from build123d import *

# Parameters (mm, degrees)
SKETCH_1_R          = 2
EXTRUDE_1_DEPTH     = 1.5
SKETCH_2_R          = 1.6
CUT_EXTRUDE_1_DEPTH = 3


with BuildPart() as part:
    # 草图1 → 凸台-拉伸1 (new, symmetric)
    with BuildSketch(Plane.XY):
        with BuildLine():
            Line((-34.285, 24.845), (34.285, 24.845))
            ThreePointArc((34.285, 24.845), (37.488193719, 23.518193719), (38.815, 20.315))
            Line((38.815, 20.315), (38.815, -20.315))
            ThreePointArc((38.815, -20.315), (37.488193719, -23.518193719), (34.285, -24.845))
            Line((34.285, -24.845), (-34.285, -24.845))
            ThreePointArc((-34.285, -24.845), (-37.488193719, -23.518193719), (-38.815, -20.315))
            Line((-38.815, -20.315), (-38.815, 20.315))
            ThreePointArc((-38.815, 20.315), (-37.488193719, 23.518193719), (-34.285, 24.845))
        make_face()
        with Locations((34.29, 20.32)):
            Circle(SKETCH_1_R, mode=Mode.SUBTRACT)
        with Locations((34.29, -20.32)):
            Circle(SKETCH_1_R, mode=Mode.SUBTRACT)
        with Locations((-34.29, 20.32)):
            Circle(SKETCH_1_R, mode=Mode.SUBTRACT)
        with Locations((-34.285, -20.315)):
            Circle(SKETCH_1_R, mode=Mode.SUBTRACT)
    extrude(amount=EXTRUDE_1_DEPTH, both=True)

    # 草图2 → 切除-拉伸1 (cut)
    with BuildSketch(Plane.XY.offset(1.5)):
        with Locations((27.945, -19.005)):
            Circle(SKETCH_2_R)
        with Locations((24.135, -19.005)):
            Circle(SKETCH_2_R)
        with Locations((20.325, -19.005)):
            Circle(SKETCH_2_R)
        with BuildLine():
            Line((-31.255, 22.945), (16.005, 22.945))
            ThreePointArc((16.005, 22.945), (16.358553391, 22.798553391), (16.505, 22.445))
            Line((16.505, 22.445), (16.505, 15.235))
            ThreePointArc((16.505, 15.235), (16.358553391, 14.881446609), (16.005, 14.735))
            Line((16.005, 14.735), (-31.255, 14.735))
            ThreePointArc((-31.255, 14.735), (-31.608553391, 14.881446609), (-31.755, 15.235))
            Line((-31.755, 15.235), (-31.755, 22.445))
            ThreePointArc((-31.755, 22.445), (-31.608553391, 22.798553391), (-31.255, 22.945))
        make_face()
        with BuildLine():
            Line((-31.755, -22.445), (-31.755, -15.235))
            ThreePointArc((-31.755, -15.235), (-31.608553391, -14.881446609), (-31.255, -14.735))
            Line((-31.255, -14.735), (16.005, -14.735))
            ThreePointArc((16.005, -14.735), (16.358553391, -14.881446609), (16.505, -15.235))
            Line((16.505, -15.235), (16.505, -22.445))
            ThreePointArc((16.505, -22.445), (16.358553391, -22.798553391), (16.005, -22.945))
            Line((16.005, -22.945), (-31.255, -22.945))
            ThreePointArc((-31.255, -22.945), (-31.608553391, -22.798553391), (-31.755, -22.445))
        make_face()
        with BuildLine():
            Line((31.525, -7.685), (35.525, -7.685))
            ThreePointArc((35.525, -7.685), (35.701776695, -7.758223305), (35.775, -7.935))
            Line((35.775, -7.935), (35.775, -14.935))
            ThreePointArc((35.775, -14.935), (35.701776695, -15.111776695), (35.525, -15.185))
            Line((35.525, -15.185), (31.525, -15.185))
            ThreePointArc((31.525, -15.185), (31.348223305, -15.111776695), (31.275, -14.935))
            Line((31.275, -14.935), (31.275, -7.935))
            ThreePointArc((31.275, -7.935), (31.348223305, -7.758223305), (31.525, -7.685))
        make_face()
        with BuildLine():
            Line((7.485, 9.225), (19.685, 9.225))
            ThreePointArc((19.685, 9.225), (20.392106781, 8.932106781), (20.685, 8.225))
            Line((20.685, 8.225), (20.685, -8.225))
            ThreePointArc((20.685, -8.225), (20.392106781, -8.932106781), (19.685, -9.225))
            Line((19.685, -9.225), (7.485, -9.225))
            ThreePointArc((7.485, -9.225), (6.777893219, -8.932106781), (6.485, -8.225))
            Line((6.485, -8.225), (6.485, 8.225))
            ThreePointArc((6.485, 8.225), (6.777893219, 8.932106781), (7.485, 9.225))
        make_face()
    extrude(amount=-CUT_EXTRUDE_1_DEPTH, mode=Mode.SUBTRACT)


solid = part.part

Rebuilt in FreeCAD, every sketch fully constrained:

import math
import FreeCAD as App
import Part
import Sketcher
from FreeCAD import Vector
Q = App.Units.Quantity

doc = App.newDocument("Part")
body = doc.addObject("PartDesign::Body", "Body")

# Sketch on XY plane
sketch1 = body.newObject("Sketcher::SketchObject", "Sketch")
sketch1.AttachmentSupport = (doc.getObject("XY_Plane"), [""])
sketch1.MapMode = "FlatFace"
sketch1.addGeometry([
    Part.LineSegment(Vector(34.3, 24.8, 0), Vector(-34.3, 24.8, 0)),  # 0
    Part.ArcOfCircle(Part.Circle(Vector(-34.3, 20.3, 0), Vector(0, 0, 1), 4.5), math.radians(90), math.radians(180)),  # 1
    Part.LineSegment(Vector(-38.8, 20.3, 0), Vector(-38.8, -20.3, 0)),  # 2
    Part.ArcOfCircle(Part.Circle(Vector(-34.3, -20.3, 0), Vector(0, 0, 1), 4.5), math.radians(180), math.radians(270)),  # 3
    Part.LineSegment(Vector(-34.3, -24.8, 0), Vector(34.3, -24.8, 0)),  # 4
    Part.ArcOfCircle(Part.Circle(Vector(34.3, -20.3, 0), Vector(0, 0, 1), 4.5), math.radians(-90), math.radians(0)),  # 5
    Part.LineSegment(Vector(38.8, -20.3, 0), Vector(38.8, 20.3, 0)),  # 6
    Part.ArcOfCircle(Part.Circle(Vector(34.3, 20.3, 0), Vector(0, 0, 1), 4.5), math.radians(0), math.radians(90)),  # 7
    Part.Circle(Vector(34.3, -20.3, 0), Vector(0, 0, 1), 2),  # 8
    Part.Circle(Vector(-34.3, -20.3, 0), Vector(0, 0, 1), 2),  # 9
    Part.Circle(Vector(34.3, 20.3, 0), Vector(0, 0, 1), 2),  # 10
    Part.Circle(Vector(-34.3, 20.3, 0), Vector(0, 0, 1), 2),  # 11
], False)
sketch1.addConstraint([
    Sketcher.Constraint("Tangent", 0, 2, 1, 1),
    Sketcher.Constraint("Tangent", 1, 2, 2, 1),
    Sketcher.Constraint("Tangent", 2, 2, 3, 1),
    Sketcher.Constraint("Tangent", 3, 2, 4, 1),
    Sketcher.Constraint("Tangent", 4, 2, 5, 1),
    Sketcher.Constraint("Tangent", 5, 2, 6, 1),
    Sketcher.Constraint("Tangent", 6, 2, 7, 1),
    Sketcher.Constraint("Tangent", 7, 2, 0, 1),
    Sketcher.Constraint("Horizontal", 0),
    Sketcher.Constraint("Vertical", 2),
    Sketcher.Constraint("Horizontal", 4),
    Sketcher.Constraint("Vertical", 6),
    Sketcher.Constraint("Coincident", 9, 3, 3, 3),
    Sketcher.Constraint("Equal", 1, 3),
    Sketcher.Constraint("Equal", 3, 5),
    Sketcher.Constraint("Equal", 5, 7),
    Sketcher.Constraint("Equal", 8, 9),
    Sketcher.Constraint("Equal", 9, 10),
    Sketcher.Constraint("Equal", 10, 11),
    Sketcher.Constraint("Symmetric", 1, 3, 5, 3, -1, 1),
    Sketcher.Constraint("Symmetric", 8, 3, 11, 3, -1, 1),
    Sketcher.Constraint("Symmetric", 10, 3, 11, 3, -2),
    Sketcher.Constraint("Diameter", 8, Q("4 mm")),
    Sketcher.Constraint("Radius", 1, Q("4.53 mm")),
    Sketcher.Constraint("DistanceX", 0, 2, 0, 1, Q("68.57 mm")),
    Sketcher.Constraint("DistanceY", 2, 2, 2, 1, Q("40.63 mm")),
    Sketcher.Constraint("DistanceX", -1, 1, 8, 3, Q("34.29 mm")),
    Sketcher.Constraint("DistanceY", 8, 3, -1, 1, Q("20.32 mm")),
])
pad1 = body.newObject("PartDesign::Pad", "Pad")
pad1.Profile = sketch1
pad1.Length = 3
pad1.Midplane = True

# Sketch on XY plane
sketch2 = body.newObject("Sketcher::SketchObject", "Sketch001")
sketch2.AttachmentSupport = (doc.getObject("XY_Plane"), [""])
sketch2.MapMode = "FlatFace"
sketch2.AttachmentOffset = App.Placement(Vector(0, 0, 1.5), App.Rotation())
sketch2.addGeometry([
    Part.Circle(Vector(27.95, -19, 0), Vector(0, 0, 1), 1.6),  # 0
    Part.Circle(Vector(24.14, -19, 0), Vector(0, 0, 1), 1.6),  # 1
    Part.Circle(Vector(20.32, -19, 0), Vector(0, 0, 1), 1.6),  # 2
    Part.LineSegment(Vector(16, 22.95, 0), Vector(-31.25, 22.95, 0)),  # 3
    Part.ArcOfCircle(Part.Circle(Vector(-31.26, 22.45, 0), Vector(0, 0, 1), 0.5), math.radians(90), math.radians(180)),  # 4
    Part.LineSegment(Vector(-31.75, 22.45, 0), Vector(-31.75, 15.23, 0)),  # 5
    Part.ArcOfCircle(Part.Circle(Vector(-31.26, 15.23, 0), Vector(0, 0, 1), 0.5), math.radians(180), math.radians(270)),  # 6
    Part.LineSegment(Vector(-31.25, 14.73, 0), Vector(16, 14.73, 0)),  # 7
    Part.ArcOfCircle(Part.Circle(Vector(16.01, 15.23, 0), Vector(0, 0, 1), 0.5), math.radians(-90), math.radians(0)),  # 8
    Part.LineSegment(Vector(16.5, 15.23, 0), Vector(16.5, 22.45, 0)),  # 9
    Part.ArcOfCircle(Part.Circle(Vector(16.01, 22.45, 0), Vector(0, 0, 1), 0.5), math.radians(0), math.radians(90)),  # 10
    Part.LineSegment(Vector(-31.75, -15.23, 0), Vector(-31.75, -22.45, 0)),  # 11
    Part.ArcOfCircle(Part.Circle(Vector(-31.26, -22.45, 0), Vector(0, 0, 1), 0.5), math.radians(180), math.radians(270)),  # 12
    Part.LineSegment(Vector(-31.25, -22.95, 0), Vector(16, -22.95, 0)),  # 13
    Part.ArcOfCircle(Part.Circle(Vector(16.01, -22.45, 0), Vector(0, 0, 1), 0.5), math.radians(-90), math.radians(0)),  # 14
    Part.LineSegment(Vector(16.5, -22.45, 0), Vector(16.5, -15.23, 0)),  # 15
    Part.ArcOfCircle(Part.Circle(Vector(16.01, -15.23, 0), Vector(0, 0, 1), 0.5), math.radians(0), math.radians(90)),  # 16
    Part.LineSegment(Vector(16, -14.73, 0), Vector(-31.25, -14.73, 0)),  # 17
    Part.ArcOfCircle(Part.Circle(Vector(-31.26, -15.23, 0), Vector(0, 0, 1), 0.5), math.radians(90), math.radians(180)),  # 18
    Part.LineSegment(Vector(35.52, -7.68, 0), Vector(31.52, -7.68, 0)),  # 19
    Part.ArcOfCircle(Part.Circle(Vector(31.53, -7.94, 0), Vector(0, 0, 1), 0.25), math.radians(90), math.radians(180)),  # 20
    Part.LineSegment(Vector(31.27, -7.93, 0), Vector(31.27, -14.94, 0)),  # 21
    Part.ArcOfCircle(Part.Circle(Vector(31.53, -14.93, 0), Vector(0, 0, 1), 0.25), math.radians(-180), math.radians(-90)),  # 22
    Part.LineSegment(Vector(31.52, -15.19, 0), Vector(35.52, -15.19, 0)),  # 23
    Part.ArcOfCircle(Part.Circle(Vector(35.52, -14.93, 0), Vector(0, 0, 1), 0.25), math.radians(-90), math.radians(0)),  # 24
    Part.LineSegment(Vector(35.77, -14.94, 0), Vector(35.77, -7.93, 0)),  # 25
    Part.ArcOfCircle(Part.Circle(Vector(35.52, -7.94, 0), Vector(0, 0, 1), 0.25), math.radians(0), math.radians(90)),  # 26
    Part.LineSegment(Vector(19.68, 9.22, 0), Vector(7.49, 9.22, 0)),  # 27
    Part.ArcOfCircle(Part.Circle(Vector(7.49, 8.22, 0), Vector(0, 0, 1), 1), math.radians(90), math.radians(180)),  # 28
    Part.LineSegment(Vector(6.49, 8.22, 0), Vector(6.49, -8.22, 0)),  # 29
    Part.ArcOfCircle(Part.Circle(Vector(7.49, -8.22, 0), Vector(0, 0, 1), 1), math.radians(-180), math.radians(-90)),  # 30
    Part.LineSegment(Vector(7.49, -9.22, 0), Vector(19.68, -9.22, 0)),  # 31
    Part.ArcOfCircle(Part.Circle(Vector(19.68, -8.22, 0), Vector(0, 0, 1), 1), math.radians(-90), math.radians(0)),  # 32
    Part.LineSegment(Vector(20.68, -8.22, 0), Vector(20.68, 8.22, 0)),  # 33
    Part.ArcOfCircle(Part.Circle(Vector(19.68, 8.22, 0), Vector(0, 0, 1), 1), math.radians(0), math.radians(90)),  # 34
], False)
sketch2.addConstraint([
    Sketcher.Constraint("Tangent", 3, 2, 4, 1),
    Sketcher.Constraint("Tangent", 4, 2, 5, 1),
    Sketcher.Constraint("Tangent", 5, 2, 6, 1),
    Sketcher.Constraint("Tangent", 6, 2, 7, 1),
    Sketcher.Constraint("Tangent", 7, 2, 8, 1),
    Sketcher.Constraint("Tangent", 8, 2, 9, 1),
    Sketcher.Constraint("Tangent", 9, 2, 10, 1),
    Sketcher.Constraint("Tangent", 10, 2, 3, 1),
    Sketcher.Constraint("Tangent", 11, 2, 12, 1),
    Sketcher.Constraint("Tangent", 12, 2, 13, 1),
    Sketcher.Constraint("Tangent", 13, 2, 14, 1),
    Sketcher.Constraint("Tangent", 14, 2, 15, 1),
    Sketcher.Constraint("Tangent", 15, 2, 16, 1),
    Sketcher.Constraint("Tangent", 16, 2, 17, 1),
    Sketcher.Constraint("Tangent", 17, 2, 18, 1),
    Sketcher.Constraint("Tangent", 18, 2, 11, 1),
    Sketcher.Constraint("Tangent", 19, 2, 20, 1),
    Sketcher.Constraint("Tangent", 20, 2, 21, 1),
    Sketcher.Constraint("Tangent", 21, 2, 22, 1),
    Sketcher.Constraint("Tangent", 22, 2, 23, 1),
    Sketcher.Constraint("Tangent", 23, 2, 24, 1),
    Sketcher.Constraint("Tangent", 24, 2, 25, 1),
    Sketcher.Constraint("Tangent", 25, 2, 26, 1),
    Sketcher.Constraint("Tangent", 26, 2, 19, 1),
    Sketcher.Constraint("Tangent", 27, 2, 28, 1),
    Sketcher.Constraint("Tangent", 28, 2, 29, 1),
    Sketcher.Constraint("Tangent", 29, 2, 30, 1),
    Sketcher.Constraint("Tangent", 30, 2, 31, 1),
    Sketcher.Constraint("Tangent", 31, 2, 32, 1),
    Sketcher.Constraint("Tangent", 32, 2, 33, 1),
    Sketcher.Constraint("Tangent", 33, 2, 34, 1),
    Sketcher.Constraint("Tangent", 34, 2, 27, 1),
    Sketcher.Constraint("Horizontal", 3),
    Sketcher.Constraint("Vertical", 5),
    Sketcher.Constraint("Horizontal", 7),
    Sketcher.Constraint("Vertical", 9),
    Sketcher.Constraint("Vertical", 11),
    Sketcher.Constraint("Horizontal", 13),
    Sketcher.Constraint("Vertical", 15),
    Sketcher.Constraint("Horizontal", 17),
    Sketcher.Constraint("Horizontal", 19),
    Sketcher.Constraint("Vertical", 21),
    Sketcher.Constraint("Horizontal", 23),
    Sketcher.Constraint("Vertical", 25),
    Sketcher.Constraint("Horizontal", 27),
    Sketcher.Constraint("Vertical", 29),
    Sketcher.Constraint("Horizontal", 31),
    Sketcher.Constraint("Vertical", 33),
    Sketcher.Constraint("Equal", 0, 1),
    Sketcher.Constraint("Equal", 1, 2),
    Sketcher.Constraint("Equal", 4, 6),
    Sketcher.Constraint("Equal", 6, 8),
    Sketcher.Constraint("Equal", 8, 10),
    Sketcher.Constraint("Equal", 10, 12),
    Sketcher.Constraint("Equal", 12, 14),
    Sketcher.Constraint("Equal", 14, 16),
    Sketcher.Constraint("Equal", 16, 18),
    Sketcher.Constraint("Equal", 20, 22),
    Sketcher.Constraint("Equal", 22, 24),
    Sketcher.Constraint("Equal", 24, 26),
    Sketcher.Constraint("Equal", 28, 30),
    Sketcher.Constraint("Equal", 30, 32),
    Sketcher.Constraint("Equal", 32, 34),
    Sketcher.Constraint("Symmetric", 4, 3, 12, 3, -1),
    Sketcher.Constraint("Symmetric", 8, 3, 16, 3, -1),
    Sketcher.Constraint("Horizontal", 0, 3, 1, 3),
    Sketcher.Constraint("Horizontal", 1, 3, 2, 3),
    Sketcher.Constraint("Radius", 28, Q("1 mm")),
    Sketcher.Constraint("Diameter", 0, Q("3.2 mm")),
    Sketcher.Constraint("Radius", 4, Q("0.5 mm")),
    Sketcher.Constraint("DistanceX", 19, 2, 19, 1, Q("4 mm")),
    Sketcher.Constraint("DistanceY", 21, 2, 21, 1, Q("7 mm")),
    Sketcher.Constraint("Radius", 20, Q("0.25 mm")),
    Sketcher.Constraint("DistanceX", 27, 2, 27, 1, Q("12.2 mm")),
    Sketcher.Constraint("DistanceX", 3, 2, 3, 1, Q("47.26 mm")),
    Sketcher.Constraint("DistanceY", 5, 2, 5, 1, Q("7.21 mm")),
    Sketcher.Constraint("DistanceY", 29, 2, 29, 1, Q("16.45 mm")),
    Sketcher.Constraint("DistanceX", 4, 3, 0, 3, Q("59.2 mm")),
    Sketcher.Constraint("DistanceX", 2, 3, 20, 3, Q("11.2 mm")),
    Sketcher.Constraint("DistanceY", 16, 3, 20, 3, Q("7.3 mm")),
    Sketcher.Constraint("DistanceX", 1, 3, 0, 3, Q("3.81 mm")),
    Sketcher.Constraint("DistanceX", 2, 3, 1, 3, Q("3.81 mm")),
    Sketcher.Constraint("DistanceY", 2, 3, 4, 3, Q("41.45 mm")),
    Sketcher.Constraint("DistanceY", 12, 3, 6, 3, Q("37.68 mm")),
    Sketcher.Constraint("DistanceX", 28, 3, 8, 3, Q("8.52 mm")),
    Sketcher.Constraint("DistanceY", 28, 3, 8, 3, Q("7.01 mm")),
    Sketcher.Constraint("DistanceX", -1, 1, 0, 3, Q("27.945 mm")),
])
pocket1 = body.newObject("PartDesign::Pocket", "Pocket")
pocket1.Profile = sketch2
pocket1.Length = 3

doc.recompute()
